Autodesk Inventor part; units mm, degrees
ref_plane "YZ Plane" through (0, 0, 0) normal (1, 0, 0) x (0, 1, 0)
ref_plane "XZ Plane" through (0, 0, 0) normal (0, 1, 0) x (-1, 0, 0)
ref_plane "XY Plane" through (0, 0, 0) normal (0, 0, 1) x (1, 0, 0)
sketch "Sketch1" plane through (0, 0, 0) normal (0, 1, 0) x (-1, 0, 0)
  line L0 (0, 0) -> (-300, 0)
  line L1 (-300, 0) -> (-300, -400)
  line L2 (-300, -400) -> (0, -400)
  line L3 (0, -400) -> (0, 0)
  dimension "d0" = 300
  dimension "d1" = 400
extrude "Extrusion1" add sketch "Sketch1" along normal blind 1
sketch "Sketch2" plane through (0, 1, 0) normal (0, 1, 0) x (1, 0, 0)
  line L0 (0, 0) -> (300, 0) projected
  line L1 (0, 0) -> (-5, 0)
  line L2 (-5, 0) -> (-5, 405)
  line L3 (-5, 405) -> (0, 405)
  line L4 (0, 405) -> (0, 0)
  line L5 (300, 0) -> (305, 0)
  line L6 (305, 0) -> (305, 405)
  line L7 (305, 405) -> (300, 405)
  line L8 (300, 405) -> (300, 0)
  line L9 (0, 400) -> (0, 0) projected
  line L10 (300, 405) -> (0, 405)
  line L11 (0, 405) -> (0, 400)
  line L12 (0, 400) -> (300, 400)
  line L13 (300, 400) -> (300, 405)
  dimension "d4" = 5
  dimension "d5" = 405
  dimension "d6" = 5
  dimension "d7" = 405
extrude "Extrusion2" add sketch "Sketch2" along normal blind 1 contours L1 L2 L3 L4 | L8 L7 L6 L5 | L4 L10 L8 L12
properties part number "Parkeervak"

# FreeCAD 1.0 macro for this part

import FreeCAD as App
import Part
import Sketcher

V = App.Vector
Q = App.Units.Quantity

doc = App.newDocument("Part")
params = doc.addObject("Spreadsheet::Sheet", "Params")
for row, (alias, value) in enumerate([
    ("sketch1_width", "300 mm"),
    ("sketch1_height", "400 mm"),
    ("pad1_length", "1 mm"),
    ("sketch2_width", "5 mm"),
    ("sketch2_height", "405 mm"),
    ("sketch2_width2", "300 mm"),
    ("pad2_length", "1 mm"),
], start=1):
    params.set(f"A{row}", alias)
    params.set(f"B{row}", "=" + value)
    params.setAlias(f"B{row}", alias)

body = doc.addObject("PartDesign::Body", "Body")
body.AllowCompound = True

# Sketch on XZ plane
sketch1 = body.newObject("Sketcher::SketchObject", "Sketch")
sketch1.AttachmentSupport = (doc.getObject("XZ_Plane"), [""])
sketch1.MapMode = "FlatFace"
sketch1.addGeometry(Part.LineSegment(V(0, -400, 0), V(0, 0, 0)), False)
sketch1.addGeometry(Part.LineSegment(V(0, 0, 0), V(300, 0, 0)), False)
sketch1.addGeometry(Part.LineSegment(V(300, 0, 0), V(300, -400, 0)), False)
sketch1.addGeometry(Part.LineSegment(V(300, -400, 0), V(0, -400, 0)), False)
sketch1.addConstraint(Sketcher.Constraint("Coincident", 0, 2, 1, 1))
sketch1.addConstraint(Sketcher.Constraint("Coincident", 1, 2, 2, 1))
sketch1.addConstraint(Sketcher.Constraint("Coincident", 2, 2, 3, 1))
sketch1.addConstraint(Sketcher.Constraint("Coincident", 3, 2, 0, 1))
sketch1.addConstraint(Sketcher.Constraint("Vertical", 0))
sketch1.addConstraint(Sketcher.Constraint("Horizontal", 1))
sketch1.addConstraint(Sketcher.Constraint("Vertical", 2))
sketch1.addConstraint(Sketcher.Constraint("Horizontal", 3))
sketch1.addConstraint(Sketcher.Constraint("Coincident", 0, 2, -1, 1))
sketch1.addConstraint(Sketcher.Constraint("DistanceX", 1, 1, 1, 2, Q("300 mm")))
sketch1.addConstraint(Sketcher.Constraint("DistanceY", 0, 1, 0, 2, Q("400 mm")))
sketch1.setExpression("Constraints[9]", "Params.sketch1_width")
sketch1.setExpression("Constraints[10]", "Params.sketch1_height")
pad1 = body.newObject("PartDesign::Pad", "Pad")
pad1.Profile = sketch1
pad1.setExpression("Length", "Params.pad1_length")
pad1.Reversed = True

# Sketch on XZ plane
sketch2 = body.newObject("Sketcher::SketchObject", "Sketch001")
sketch2.AttachmentSupport = (doc.getObject("XZ_Plane"), [""])
sketch2.MapMode = "FlatFace"
sketch2.AttachmentOffset = App.Placement(V(0, 0, -1), App.Rotation())
sketch2.addGeometry(Part.LineSegment(V(-5, 0, 0), V(0, 0, 0)), False)
sketch2.addGeometry(Part.LineSegment(V(0, 0, 0), V(0, -400, 0)), False)
sketch2.addGeometry(Part.LineSegment(V(0, -400, 0), V(300, -400, 0)), False)
sketch2.addGeometry(Part.LineSegment(V(300, -400, 0), V(300, 0, 0)), False)
sketch2.addGeometry(Part.LineSegment(V(300, 0, 0), V(305, 0, 0)), False)
sketch2.addGeometry(Part.LineSegment(V(305, 0, 0), V(305, -405, 0)), False)
sketch2.addGeometry(Part.LineSegment(V(305, -405, 0), V(-5, -405, 0)), False)
sketch2.addGeometry(Part.LineSegment(V(-5, -405, 0), V(-5, 0, 0)), False)
sketch2.addConstraint(Sketcher.Constraint("Coincident", 0, 2, 1, 1))
sketch2.addConstraint(Sketcher.Constraint("Coincident", 1, 2, 2, 1))
sketch2.addConstraint(Sketcher.Constraint("Coincident", 2, 2, 3, 1))
sketch2.addConstraint(Sketcher.Constraint("Coincident", 3, 2, 4, 1))
sketch2.addConstraint(Sketcher.Constraint("Coincident", 4, 2, 5, 1))
sketch2.addConstraint(Sketcher.Constraint("Coincident", 5, 2, 6, 1))
sketch2.addConstraint(Sketcher.Constraint("Coincident", 6, 2, 7, 1))
sketch2.addConstraint(Sketcher.Constraint("Coincident", 7, 2, 0, 1))
sketch2.addConstraint(Sketcher.Constraint("Horizontal", 0))
sketch2.addConstraint(Sketcher.Constraint("Vertical", 1))
sketch2.addConstraint(Sketcher.Constraint("Horizontal", 2))
sketch2.addConstraint(Sketcher.Constraint("Vertical", 3))
sketch2.addConstraint(Sketcher.Constraint("Horizontal", 4))
sketch2.addConstraint(Sketcher.Constraint("Vertical", 5))
sketch2.addConstraint(Sketcher.Constraint("Horizontal", 6))
sketch2.addConstraint(Sketcher.Constraint("Vertical", 7))
sketch2.addConstraint(Sketcher.Constraint("Coincident", 0, 2, -1, 1))
sketch2.addConstraint(Sketcher.Constraint("PointOnObject", 3, 2, -1))
sketch2.addConstraint(Sketcher.Constraint("Equal", 0, 4))
sketch2.addConstraint(Sketcher.Constraint("DistanceX", 0, 1, 0, 2, Q("5 mm")))
sketch2.addConstraint(Sketcher.Constraint("DistanceY", 5, 2, 5, 1, Q("405 mm")))
sketch2.addConstraint(Sketcher.Constraint("DistanceY", 5, 2, 2, 2, Q("5 mm")))
sketch2.addConstraint(Sketcher.Constraint("DistanceX", 2, 1, 2, 2, Q("300 mm")))
sketch2.setExpression("Constraints[19]", "Params.sketch2_width")
sketch2.setExpression("Constraints[20]", "Params.sketch2_height")
sketch2.setExpression("Constraints[22]", "Params.sketch2_width2")
pad2 = body.newObject("PartDesign::Pad", "Pad001")
pad2.Profile = sketch2
pad2.setExpression("Length", "Params.pad2_length")
pad2.Reversed = True

doc.recompute()
